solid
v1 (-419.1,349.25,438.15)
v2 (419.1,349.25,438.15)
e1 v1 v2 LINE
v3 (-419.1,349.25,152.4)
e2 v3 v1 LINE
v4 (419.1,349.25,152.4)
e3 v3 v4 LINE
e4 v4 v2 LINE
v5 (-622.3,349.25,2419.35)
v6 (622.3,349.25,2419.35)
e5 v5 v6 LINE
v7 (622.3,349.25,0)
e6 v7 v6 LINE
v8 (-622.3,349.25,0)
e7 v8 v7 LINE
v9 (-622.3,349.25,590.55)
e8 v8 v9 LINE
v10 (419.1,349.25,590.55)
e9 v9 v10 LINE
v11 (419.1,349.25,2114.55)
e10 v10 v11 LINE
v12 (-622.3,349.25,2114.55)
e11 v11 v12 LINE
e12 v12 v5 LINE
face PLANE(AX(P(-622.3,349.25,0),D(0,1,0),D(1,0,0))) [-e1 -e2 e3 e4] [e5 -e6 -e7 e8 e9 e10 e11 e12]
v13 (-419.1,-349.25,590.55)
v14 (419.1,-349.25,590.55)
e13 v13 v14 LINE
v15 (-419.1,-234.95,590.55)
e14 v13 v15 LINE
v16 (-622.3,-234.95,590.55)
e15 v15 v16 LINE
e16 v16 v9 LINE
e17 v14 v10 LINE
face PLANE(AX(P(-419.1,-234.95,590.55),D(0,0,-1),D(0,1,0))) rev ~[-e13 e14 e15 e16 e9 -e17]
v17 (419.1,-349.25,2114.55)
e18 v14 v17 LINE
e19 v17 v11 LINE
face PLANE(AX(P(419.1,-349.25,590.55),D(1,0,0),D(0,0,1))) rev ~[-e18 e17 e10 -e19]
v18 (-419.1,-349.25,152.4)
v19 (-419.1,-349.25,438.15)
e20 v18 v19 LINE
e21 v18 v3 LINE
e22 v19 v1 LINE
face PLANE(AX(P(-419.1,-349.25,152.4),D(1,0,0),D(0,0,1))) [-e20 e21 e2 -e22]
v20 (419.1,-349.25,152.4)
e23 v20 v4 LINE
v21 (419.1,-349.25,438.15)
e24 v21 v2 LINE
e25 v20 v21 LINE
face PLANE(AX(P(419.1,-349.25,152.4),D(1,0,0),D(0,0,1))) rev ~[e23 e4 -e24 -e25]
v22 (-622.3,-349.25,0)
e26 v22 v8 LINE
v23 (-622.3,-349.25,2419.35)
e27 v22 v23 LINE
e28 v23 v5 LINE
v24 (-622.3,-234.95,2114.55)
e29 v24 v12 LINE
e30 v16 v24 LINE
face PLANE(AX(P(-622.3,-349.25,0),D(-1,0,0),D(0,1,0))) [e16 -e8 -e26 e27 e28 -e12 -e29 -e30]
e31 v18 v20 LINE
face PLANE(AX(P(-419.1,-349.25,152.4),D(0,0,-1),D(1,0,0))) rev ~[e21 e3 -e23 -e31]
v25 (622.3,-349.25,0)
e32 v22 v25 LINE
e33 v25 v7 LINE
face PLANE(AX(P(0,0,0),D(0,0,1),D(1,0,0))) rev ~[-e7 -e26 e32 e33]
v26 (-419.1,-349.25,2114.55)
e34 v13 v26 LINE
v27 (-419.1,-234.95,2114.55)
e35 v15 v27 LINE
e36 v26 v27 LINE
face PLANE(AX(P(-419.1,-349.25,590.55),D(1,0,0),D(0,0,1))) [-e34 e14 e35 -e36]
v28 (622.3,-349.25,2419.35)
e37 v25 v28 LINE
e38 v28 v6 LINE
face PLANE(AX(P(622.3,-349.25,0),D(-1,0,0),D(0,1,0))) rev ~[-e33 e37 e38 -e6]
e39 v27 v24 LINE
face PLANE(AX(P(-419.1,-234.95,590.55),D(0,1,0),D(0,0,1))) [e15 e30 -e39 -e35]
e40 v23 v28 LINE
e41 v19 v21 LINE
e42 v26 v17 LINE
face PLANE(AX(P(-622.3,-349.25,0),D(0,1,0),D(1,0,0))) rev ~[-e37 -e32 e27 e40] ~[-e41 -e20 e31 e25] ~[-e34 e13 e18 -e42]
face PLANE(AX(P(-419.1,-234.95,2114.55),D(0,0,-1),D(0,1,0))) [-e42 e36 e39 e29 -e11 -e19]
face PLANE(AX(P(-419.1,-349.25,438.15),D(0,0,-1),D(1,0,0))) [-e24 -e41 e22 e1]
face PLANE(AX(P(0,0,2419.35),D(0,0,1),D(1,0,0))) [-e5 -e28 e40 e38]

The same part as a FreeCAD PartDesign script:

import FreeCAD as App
import Part
import Sketcher
Q = App.Units.Quantity

doc = App.newDocument("Part")
body = doc.addObject("PartDesign::Body", "Body")

# Sketch on XY plane
sketch1 = body.newObject("Sketcher::SketchObject", "Sketch")
sketch1.AttachmentSupport = (doc.getObject("XY_Plane"), [""])
sketch1.MapMode = "FlatFace"
sketch1.addGeometry(Part.LineSegment(App.Vector(-622.3, 349.25, 0), App.Vector(-622.3, -349.25, 0)), False)
sketch1.addGeometry(Part.LineSegment(App.Vector(-622.3, -349.25, 0), App.Vector(622.3, -349.25, 0)), False)
sketch1.addGeometry(Part.LineSegment(App.Vector(622.3, -349.25, 0), App.Vector(622.3, 349.25, 0)), False)
sketch1.addGeometry(Part.LineSegment(App.Vector(622.3, 349.25, 0), App.Vector(-622.3, 349.25, 0)), False)
sketch1.addConstraint(Sketcher.Constraint("Coincident", 0, 2, 1, 1))
sketch1.addConstraint(Sketcher.Constraint("Coincident", 1, 2, 2, 1))
sketch1.addConstraint(Sketcher.Constraint("Coincident", 2, 2, 3, 1))
sketch1.addConstraint(Sketcher.Constraint("Coincident", 3, 2, 0, 1))
sketch1.addConstraint(Sketcher.Constraint("Vertical", 0))
sketch1.addConstraint(Sketcher.Constraint("Horizontal", 1))
sketch1.addConstraint(Sketcher.Constraint("Vertical", 2))
sketch1.addConstraint(Sketcher.Constraint("Horizontal", 3))
sketch1.addConstraint(Sketcher.Constraint("Symmetric", 0, 2, 2, 2, -1, 1))
sketch1.addConstraint(Sketcher.Constraint("DistanceX", 1, 1, 1, 2, Q("49 in")))
sketch1.addConstraint(Sketcher.Constraint("DistanceY", 0, 2, 0, 1, Q("27.5 in")))
pad1 = body.newObject("PartDesign::Pad", "Pad")
pad1.Profile = sketch1
pad1.Length = Q("95.25 in")

# Sketch on XZ plane
sketch2 = body.newObject("Sketcher::SketchObject", "Sketch001")
sketch2.AttachmentSupport = (doc.getObject("XZ_Plane"), [""])
sketch2.MapMode = "FlatFace"
sketch2.AttachmentOffset = App.Placement(App.Vector(0, 0, 13.75 * 25.4), App.Rotation())
sketch2.addGeometry(Part.LineSegment(App.Vector(-419.1, 2114.55, 0), App.Vector(-419.1, 590.55, 0)), False)
sketch2.addGeometry(Part.LineSegment(App.Vector(-419.1, 590.55, 0), App.Vector(419.1, 590.55, 0)), False)
sketch2.addGeometry(Part.LineSegment(App.Vector(419.1, 590.55, 0), App.Vector(419.1, 2114.55, 0)), False)
sketch2.addGeometry(Part.LineSegment(App.Vector(419.1, 2114.55, 0), App.Vector(-419.1, 2114.55, 0)), False)
sketch2.addConstraint(Sketcher.Constraint("Coincident", 0, 2, 1, 1))
sketch2.addConstraint(Sketcher.Constraint("Coincident", 1, 2, 2, 1))
sketch2.addConstraint(Sketcher.Constraint("Coincident", 2, 2, 3, 1))
sketch2.addConstraint(Sketcher.Constraint("Coincident", 3, 2, 0, 1))
sketch2.addConstraint(Sketcher.Constraint("Vertical", 0))
sketch2.addConstraint(Sketcher.Constraint("Horizontal", 1))
sketch2.addConstraint(Sketcher.Constraint("Vertical", 2))
sketch2.addConstraint(Sketcher.Constraint("Horizontal", 3))
sketch2.addConstraint(Sketcher.Constraint("DistanceX", 1, 1, 1, 2, Q("33 in")))
sketch2.addConstraint(Sketcher.Constraint("DistanceY", 0, 2, 0, 1, Q("60 in")))
sketch2.addConstraint(Sketcher.Constraint("DistanceX", 0, 2, -1, 1, Q("16.5 in")))
sketch2.addConstraint(Sketcher.Constraint("DistanceY", -1, 1, 0, 2, Q("23.25 in")))
pocket1 = body.newObject("PartDesign::Pocket", "Pocket")
pocket1.Profile = sketch2
pocket1.Length = Q("27.5 in")

# Sketch on YZ plane
sketch3 = body.newObject("Sketcher::SketchObject", "Sketch002")
sketch3.AttachmentSupport = (doc.getObject("YZ_Plane"), [""])
sketch3.MapMode = "FlatFace"
sketch3.AttachmentOffset = App.Placement(App.Vector(0, 0, -16.5 * 25.4), App.Rotation())
sketch3.addGeometry(Part.LineSegment(App.Vector(-234.95, 2114.55, 0), App.Vector(-234.95, 590.55, 0)), False)
sketch3.addGeometry(Part.LineSegment(App.Vector(-234.95, 590.55, 0), App.Vector(349.25, 590.55, 0)), False)
sketch3.addGeometry(Part.LineSegment(App.Vector(349.25, 590.55, 0), App.Vector(349.25, 2114.55, 0)), False)
sketch3.addGeometry(Part.LineSegment(App.Vector(349.25, 2114.55, 0), App.Vector(-234.95, 2114.55, 0)), False)
sketch3.addConstraint(Sketcher.Constraint("Coincident", 0, 2, 1, 1))
sketch3.addConstraint(Sketcher.Constraint("Coincident", 1, 2, 2, 1))
sketch3.addConstraint(Sketcher.Constraint("Coincident", 2, 2, 3, 1))
sketch3.addConstraint(Sketcher.Constraint("Coincident", 3, 2, 0, 1))
sketch3.addConstraint(Sketcher.Constraint("Vertical", 0))
sketch3.addConstraint(Sketcher.Constraint("Horizontal", 1))
sketch3.addConstraint(Sketcher.Constraint("Vertical", 2))
sketch3.addConstraint(Sketcher.Constraint("Horizontal", 3))
sketch3.addConstraint(Sketcher.Constraint("DistanceX", 1, 1, 1, 2, Q("23 in")))
sketch3.addConstraint(Sketcher.Constraint("DistanceY", 0, 2, 0, 1, Q("60 in")))
sketch3.addConstraint(Sketcher.Constraint("DistanceX", 0, 2, -1, 1, Q("9.25 in")))
sketch3.addConstraint(Sketcher.Constraint("DistanceY", -1, 1, 0, 2, Q("23.25 in")))
pocket2 = body.newObject("PartDesign::Pocket", "Pocket001")
pocket2.Profile = sketch3
pocket2.Length = Q("8 in")

# Sketch on XZ plane
sketch4 = body.newObject("Sketcher::SketchObject", "Sketch003")
sketch4.AttachmentSupport = (doc.getObject("XZ_Plane"), [""])
sketch4.MapMode = "FlatFace"
sketch4.AttachmentOffset = App.Placement(App.Vector(0, 0, 13.75 * 25.4), App.Rotation())
sketch4.addGeometry(Part.LineSegment(App.Vector(-419.1, 438.15, 0), App.Vector(-419.1, 152.4, 0)), False)
sketch4.addGeometry(Part.LineSegment(App.Vector(-419.1, 152.4, 0), App.Vector(419.1, 152.4, 0)), False)
sketch4.addGeometry(Part.LineSegment(App.Vector(419.1, 152.4, 0), App.Vector(419.1, 438.15, 0)), False)
sketch4.addGeometry(Part.LineSegment(App.Vector(419.1, 438.15, 0), App.Vector(-419.1, 438.15, 0)), False)
sketch4.addConstraint(Sketcher.Constraint("Coincident", 0, 2, 1, 1))
sketch4.addConstraint(Sketcher.Constraint("Coincident", 1, 2, 2, 1))
sketch4.addConstraint(Sketcher.Constraint("Coincident", 2, 2, 3, 1))
sketch4.addConstraint(Sketcher.Constraint("Coincident", 3, 2, 0, 1))
sketch4.addConstraint(Sketcher.Constraint("Vertical", 0))
sketch4.addConstraint(Sketcher.Constraint("Horizontal", 1))
sketch4.addConstraint(Sketcher.Constraint("Vertical", 2))
sketch4.addConstraint(Sketcher.Constraint("Horizontal", 3))
sketch4.addConstraint(Sketcher.Constraint("DistanceX", 1, 1, 1, 2, Q("33 in")))
sketch4.addConstraint(Sketcher.Constraint("DistanceY", -1, 1, 0, 2, Q("6 in")))
sketch4.addConstraint(Sketcher.Constraint("DistanceY", 0, 2, 0, 1, Q("11.25 in")))
sketch4.addConstraint(Sketcher.Constraint("DistanceX", 0, 2, -1, 1, Q("16.5 in")))
pocket3 = body.newObject("PartDesign::Pocket", "Pocket002")
pocket3.Profile = sketch4
pocket3.Length = Q("27.5 in")

doc.recompute()
